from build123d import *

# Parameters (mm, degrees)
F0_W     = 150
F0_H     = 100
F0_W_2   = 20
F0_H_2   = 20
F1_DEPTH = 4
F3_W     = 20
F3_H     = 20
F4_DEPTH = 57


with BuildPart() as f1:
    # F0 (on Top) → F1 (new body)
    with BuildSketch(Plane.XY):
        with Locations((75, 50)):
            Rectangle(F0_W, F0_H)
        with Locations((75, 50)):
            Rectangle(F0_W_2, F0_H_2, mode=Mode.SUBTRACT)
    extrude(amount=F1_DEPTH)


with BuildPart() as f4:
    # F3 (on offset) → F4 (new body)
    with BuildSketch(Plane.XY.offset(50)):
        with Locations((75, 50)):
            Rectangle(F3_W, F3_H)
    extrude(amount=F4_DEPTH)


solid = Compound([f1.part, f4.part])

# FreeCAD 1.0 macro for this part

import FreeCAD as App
import Part
import Sketcher


def add_polygon(sketch, points):
    """Adds a closed chain of lines whose ends are joined by coincident constraints."""
    first, n = sketch.GeometryCount, len(points)
    for a, b in zip(points, points[1:] + points[:1]):
        sketch.addGeometry(Part.LineSegment(App.Vector(*a, 0), App.Vector(*b, 0)), False)
    for i in range(n):
        sketch.addConstraint(Sketcher.Constraint("Coincident", first + i, 2, first + (i + 1) % n, 1))

doc = App.newDocument("Part")
body = doc.addObject("PartDesign::Body", "Body")

sketch1 = body.newObject("Sketcher::SketchObject", "Sketch")
sketch1.AttachmentSupport = (doc.getObject("XY_Plane"), [""])
sketch1.MapMode = "FlatFace"
add_polygon(sketch1, [(0, 100), (0, 0), (150, 0), (150, 100)])
add_polygon(sketch1, [(85, 40), (65, 40), (65, 60), (85, 60)])
sketch1.addConstraint(Sketcher.Constraint("Vertical", 0))
sketch1.addConstraint(Sketcher.Constraint("Horizontal", 1))
sketch1.addConstraint(Sketcher.Constraint("Vertical", 2))
sketch1.addConstraint(Sketcher.Constraint("Horizontal", 3))
sketch1.addConstraint(Sketcher.Constraint("Horizontal", 4))
sketch1.addConstraint(Sketcher.Constraint("Vertical", 5))
sketch1.addConstraint(Sketcher.Constraint("Horizontal", 6))
sketch1.addConstraint(Sketcher.Constraint("Vertical", 7))
sketch1.addConstraint(Sketcher.Constraint("Coincident", 0, 2, -1, 1))
sketch1.addConstraint(Sketcher.Constraint("Equal", 6, 5))
sketch1.addConstraint(Sketcher.Constraint("DistanceX", 1, 1, 1, 2, 150.0))
sketch1.addConstraint(Sketcher.Constraint("DistanceX", 4, 2, 4, 1, 20.0))
sketch1.addConstraint(Sketcher.Constraint("DistanceY", 0, 2, 0, 1, 100.0))
sketch1.addConstraint(Sketcher.Constraint("DistanceX", -1, 1, 4, 2, 65.0))
sketch1.addConstraint(Sketcher.Constraint("DistanceY", -1, 1, 4, 2, 40.0))
pad1 = body.newObject("PartDesign::Pad", "Pad")
pad1.Profile = sketch1
pad1.Length = 4
body2 = doc.addObject("PartDesign::Body", "Body001")

sketch2 = body2.newObject("Sketcher::SketchObject", "Sketch001")
sketch2.AttachmentSupport = (doc.getObject("XY_Plane001"), [""])
sketch2.MapMode = "FlatFace"
sketch2.AttachmentOffset = App.Placement(App.Vector(0, 0, 50), App.Rotation())
add_polygon(sketch2, [(65, 60), (65, 40), (85, 40), (85, 60)])
sketch2.addConstraint(Sketcher.Constraint("Vertical", 0))
sketch2.addConstraint(Sketcher.Constraint("Horizontal", 1))
sketch2.addConstraint(Sketcher.Constraint("Vertical", 2))
sketch2.addConstraint(Sketcher.Constraint("Horizontal", 3))
sketch2.addConstraint(Sketcher.Constraint("Equal", 3, 0))
sketch2.addConstraint(Sketcher.Constraint("DistanceX", 1, 1, 1, 2, 20.0))
sketch2.addConstraint(Sketcher.Constraint("DistanceX", -1, 1, 0, 2, 65.0))
sketch2.addConstraint(Sketcher.Constraint("DistanceY", -1, 1, 0, 2, 40.0))
pad2 = body2.newObject("PartDesign::Pad", "Pad001")
pad2.Profile = sketch2
pad2.Length = 57

doc.recompute()
